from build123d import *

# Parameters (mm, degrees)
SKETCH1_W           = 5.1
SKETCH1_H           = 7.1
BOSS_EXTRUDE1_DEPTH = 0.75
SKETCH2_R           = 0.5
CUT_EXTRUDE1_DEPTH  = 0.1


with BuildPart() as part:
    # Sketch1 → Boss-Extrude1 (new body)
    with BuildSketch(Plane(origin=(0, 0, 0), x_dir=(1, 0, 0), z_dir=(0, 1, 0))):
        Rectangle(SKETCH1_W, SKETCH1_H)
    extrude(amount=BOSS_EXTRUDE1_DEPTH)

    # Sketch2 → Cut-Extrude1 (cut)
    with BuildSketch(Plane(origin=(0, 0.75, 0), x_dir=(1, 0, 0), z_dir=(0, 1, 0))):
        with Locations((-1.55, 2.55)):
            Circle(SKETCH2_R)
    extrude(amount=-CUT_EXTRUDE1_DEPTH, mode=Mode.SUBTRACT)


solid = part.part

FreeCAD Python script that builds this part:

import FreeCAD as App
import Part
import Sketcher
from FreeCAD import Vector
Q = App.Units.Quantity

doc = App.newDocument("Part")
body = doc.addObject("PartDesign::Body", "Body")

# Sketch on XZ plane
sketch1 = doc.addObject("Sketcher::SketchObject", "Sketch")
body.addObject(sketch1)
sketch1.AttachmentSupport = (doc.XZ_Plane, [""])
sketch1.MapMode = "FlatFace"
sketch1.addGeometry(Part.LineSegment(Vector(-3, -4, 0), Vector(-3, 4, 0)), False)
sketch1.addGeometry(Part.LineSegment(Vector(-3, 4, 0), Vector(3, 4, 0)), False)
sketch1.addGeometry(Part.LineSegment(Vector(3, 4, 0), Vector(3, -4, 0)), False)
sketch1.addGeometry(Part.LineSegment(Vector(3, -4, 0), Vector(-3, -4, 0)), False)
sketch1.addConstraint(Sketcher.Constraint("Coincident", 0, 2, 1, 1))
sketch1.addConstraint(Sketcher.Constraint("Coincident", 1, 2, 2, 1))
sketch1.addConstraint(Sketcher.Constraint("Coincident", 2, 2, 3, 1))
sketch1.addConstraint(Sketcher.Constraint("Coincident", 3, 2, 0, 1))
sketch1.addConstraint(Sketcher.Constraint("Vertical", 0))
sketch1.addConstraint(Sketcher.Constraint("Horizontal", 1))
sketch1.addConstraint(Sketcher.Constraint("Vertical", 2))
sketch1.addConstraint(Sketcher.Constraint("Horizontal", 3))
sketch1.addConstraint(Sketcher.Constraint("Symmetric", 0, 2, 2, 2, -1, 1))
sketch1.addConstraint(Sketcher.Constraint("DistanceX", 1, 1, 1, 2, Q("5.1 mm")))
sketch1.addConstraint(Sketcher.Constraint("DistanceY", 0, 1, 0, 2, Q("7.1 mm")))
pad1 = doc.addObject("PartDesign::Pad", "Pad")
body.addObject(pad1)
pad1.Profile = sketch1
pad1.Length = 0.75
pad1.Reversed = True

# Sketch on XZ plane
sketch2 = doc.addObject("Sketcher::SketchObject", "Sketch001")
body.addObject(sketch2)
sketch2.AttachmentSupport = (doc.XZ_Plane, [""])
sketch2.MapMode = "FlatFace"
sketch2.AttachmentOffset = App.Placement(Vector(0, 0, -0.75), App.Rotation())
sketch2.addGeometry(Part.Circle(Vector(-1.6, -2.5, 0), Vector(0, 0, 1), 0.5), False)
sketch2.addConstraint(Sketcher.Constraint("Diameter", 0, Q("1 mm")))
sketch2.addConstraint(Sketcher.Constraint("DistanceX", 0, 3, -1, 1, Q("1.55 mm")))
sketch2.addConstraint(Sketcher.Constraint("DistanceY", 0, 3, -1, 1, Q("2.55 mm")))
pocket1 = doc.addObject("PartDesign::Pocket", "Pocket")
body.addObject(pocket1)
pocket1.Profile = sketch2
pocket1.Length = 0.1
pocket1.Reversed = True

doc.recompute()
